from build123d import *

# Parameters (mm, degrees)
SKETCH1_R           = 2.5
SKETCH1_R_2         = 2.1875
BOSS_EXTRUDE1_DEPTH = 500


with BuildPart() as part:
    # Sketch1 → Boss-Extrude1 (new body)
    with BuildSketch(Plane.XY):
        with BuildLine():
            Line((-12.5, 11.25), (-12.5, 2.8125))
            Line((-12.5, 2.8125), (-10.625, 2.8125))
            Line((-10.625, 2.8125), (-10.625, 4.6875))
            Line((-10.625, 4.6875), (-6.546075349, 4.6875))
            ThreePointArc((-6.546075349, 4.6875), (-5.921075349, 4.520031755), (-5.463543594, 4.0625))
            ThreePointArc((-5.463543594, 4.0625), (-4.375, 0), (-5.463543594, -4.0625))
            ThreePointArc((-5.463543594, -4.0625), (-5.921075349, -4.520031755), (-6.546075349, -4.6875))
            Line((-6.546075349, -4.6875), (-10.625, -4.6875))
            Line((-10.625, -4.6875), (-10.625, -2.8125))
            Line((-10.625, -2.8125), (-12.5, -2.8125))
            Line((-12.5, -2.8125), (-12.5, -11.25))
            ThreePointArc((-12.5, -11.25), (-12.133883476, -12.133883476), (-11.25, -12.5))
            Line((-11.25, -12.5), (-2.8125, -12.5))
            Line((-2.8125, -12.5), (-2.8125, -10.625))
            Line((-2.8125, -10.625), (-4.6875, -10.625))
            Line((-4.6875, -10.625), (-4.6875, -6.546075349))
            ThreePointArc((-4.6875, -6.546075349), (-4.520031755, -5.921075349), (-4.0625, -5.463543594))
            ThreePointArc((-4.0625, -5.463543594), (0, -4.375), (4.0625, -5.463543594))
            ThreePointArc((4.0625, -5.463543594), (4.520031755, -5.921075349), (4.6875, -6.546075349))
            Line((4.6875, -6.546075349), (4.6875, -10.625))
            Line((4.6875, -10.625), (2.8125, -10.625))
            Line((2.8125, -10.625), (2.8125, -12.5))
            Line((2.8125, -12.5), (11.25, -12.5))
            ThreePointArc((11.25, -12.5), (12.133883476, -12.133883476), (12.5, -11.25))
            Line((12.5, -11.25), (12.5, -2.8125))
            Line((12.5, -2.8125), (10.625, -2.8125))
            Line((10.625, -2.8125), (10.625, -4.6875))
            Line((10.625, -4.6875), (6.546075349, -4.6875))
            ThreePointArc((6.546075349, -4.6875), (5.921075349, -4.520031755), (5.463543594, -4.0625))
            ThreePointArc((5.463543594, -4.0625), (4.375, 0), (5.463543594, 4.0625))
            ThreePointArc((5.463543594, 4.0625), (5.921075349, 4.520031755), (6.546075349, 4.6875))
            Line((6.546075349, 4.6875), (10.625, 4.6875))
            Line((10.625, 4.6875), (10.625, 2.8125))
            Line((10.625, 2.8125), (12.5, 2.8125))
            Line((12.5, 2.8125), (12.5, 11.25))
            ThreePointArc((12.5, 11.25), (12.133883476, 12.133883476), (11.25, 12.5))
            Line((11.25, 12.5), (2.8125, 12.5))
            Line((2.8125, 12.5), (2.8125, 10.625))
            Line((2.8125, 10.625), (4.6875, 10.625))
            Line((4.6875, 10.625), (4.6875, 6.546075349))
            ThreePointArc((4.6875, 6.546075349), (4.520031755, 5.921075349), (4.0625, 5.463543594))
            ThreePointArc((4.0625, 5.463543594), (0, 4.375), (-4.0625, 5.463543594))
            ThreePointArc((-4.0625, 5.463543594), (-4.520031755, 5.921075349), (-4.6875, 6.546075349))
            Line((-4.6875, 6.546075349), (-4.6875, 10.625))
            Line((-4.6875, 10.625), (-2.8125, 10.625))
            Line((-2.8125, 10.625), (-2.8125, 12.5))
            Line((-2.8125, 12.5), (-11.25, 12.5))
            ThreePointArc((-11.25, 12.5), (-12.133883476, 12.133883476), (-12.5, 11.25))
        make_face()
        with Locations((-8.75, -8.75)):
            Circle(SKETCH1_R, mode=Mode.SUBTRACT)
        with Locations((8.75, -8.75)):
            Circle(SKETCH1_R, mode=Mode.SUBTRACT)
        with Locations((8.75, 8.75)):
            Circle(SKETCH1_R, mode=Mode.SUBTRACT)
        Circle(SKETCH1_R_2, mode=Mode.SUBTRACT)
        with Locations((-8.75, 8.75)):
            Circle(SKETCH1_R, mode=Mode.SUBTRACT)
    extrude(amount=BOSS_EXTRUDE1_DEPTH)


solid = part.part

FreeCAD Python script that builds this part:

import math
import FreeCAD as App
import Part
import Sketcher
Q = App.Units.Quantity

doc = App.newDocument("Part")
body = doc.addObject("PartDesign::Body", "Body")

# Sketch on XY plane
sketch1 = body.newObject("Sketcher::SketchObject", "Sketch")
sketch1.AttachmentSupport = (doc.getObject("XY_Plane"), [""])
sketch1.MapMode = "FlatFace"
sketch1.addGeometry(Part.LineSegment(App.Vector(-12.5, 11.2, 0), App.Vector(-12.5, 2.8, 0)), False)
sketch1.addGeometry(Part.LineSegment(App.Vector(-12.5, 2.8, 0), App.Vector(-10.6, 2.8, 0)), False)
sketch1.addGeometry(Part.LineSegment(App.Vector(-10.6, 2.8, 0), App.Vector(-10.6, 4.7, 0)), False)
sketch1.addGeometry(Part.LineSegment(App.Vector(-10.6, 4.7, 0), App.Vector(-6.5, 4.7, 0)), False)
sketch1.addGeometry(Part.ArcOfCircle(Part.Circle(App.Vector(-6.5, 3.4, 0), App.Vector(0, 0, 1), 1.2), math.radians(30), math.radians(90)), False)
sketch1.addGeometry(Part.ArcOfCircle(Part.Circle(App.Vector(-12.5, 0, 0), App.Vector(0, 0, 1), 8.1), math.radians(-30), math.radians(30)), False)
sketch1.addGeometry(Part.ArcOfCircle(Part.Circle(App.Vector(-6.5, -3.4, 0), App.Vector(0, 0, 1), 1.2), math.radians(-90), math.radians(-30)), False)
sketch1.addGeometry(Part.LineSegment(App.Vector(-6.5, -4.7, 0), App.Vector(-10.6, -4.7, 0)), False)
sketch1.addGeometry(Part.LineSegment(App.Vector(-10.6, -4.7, 0), App.Vector(-10.6, -2.8, 0)), False)
sketch1.addGeometry(Part.LineSegment(App.Vector(-10.6, -2.8, 0), App.Vector(-12.5, -2.8, 0)), False)
sketch1.addGeometry(Part.LineSegment(App.Vector(-12.5, -2.8, 0), App.Vector(-12.5, -11.2, 0)), False)
sketch1.addGeometry(Part.ArcOfCircle(Part.Circle(App.Vector(-11.2, -11.2, 0), App.Vector(0, 0, 1), 1.3), math.radians(-180), math.radians(-90)), False)
sketch1.addGeometry(Part.LineSegment(App.Vector(-11.2, -12.5, 0), App.Vector(-2.8, -12.5, 0)), False)
sketch1.addGeometry(Part.LineSegment(App.Vector(-2.8, -12.5, 0), App.Vector(-2.8, -10.6, 0)), False)
sketch1.addGeometry(Part.LineSegment(App.Vector(-2.8, -10.6, 0), App.Vector(-4.7, -10.6, 0)), False)
sketch1.addGeometry(Part.LineSegment(App.Vector(-4.7, -10.6, 0), App.Vector(-4.7, -6.5, 0)), False)
sketch1.addGeometry(Part.ArcOfCircle(Part.Circle(App.Vector(-3.4, -6.5, 0), App.Vector(0, 0, 1), 1.2), math.radians(120), math.radians(180)), False)
sketch1.addGeometry(Part.ArcOfCircle(Part.Circle(App.Vector(0, -12.5, 0), App.Vector(0, 0, 1), 8.1), math.radians(60), math.radians(120)), False)
sketch1.addGeometry(Part.ArcOfCircle(Part.Circle(App.Vector(3.4, -6.5, 0), App.Vector(0, 0, 1), 1.2), math.radians(0), math.radians(60)), False)
sketch1.addGeometry(Part.LineSegment(App.Vector(4.7, -6.5, 0), App.Vector(4.7, -10.6, 0)), False)
sketch1.addGeometry(Part.LineSegment(App.Vector(4.7, -10.6, 0), App.Vector(2.8, -10.6, 0)), False)
sketch1.addGeometry(Part.LineSegment(App.Vector(2.8, -10.6, 0), App.Vector(2.8, -12.5, 0)), False)
sketch1.addGeometry(Part.LineSegment(App.Vector(2.8, -12.5, 0), App.Vector(11.2, -12.5, 0)), False)
sketch1.addGeometry(Part.ArcOfCircle(Part.Circle(App.Vector(11.2, -11.2, 0), App.Vector(0, 0, 1), 1.3), math.radians(-90), math.radians(0)), False)
sketch1.addGeometry(Part.LineSegment(App.Vector(12.5, -11.2, 0), App.Vector(12.5, -2.8, 0)), False)
sketch1.addGeometry(Part.LineSegment(App.Vector(12.5, -2.8, 0), App.Vector(10.6, -2.8, 0)), False)
sketch1.addGeometry(Part.LineSegment(App.Vector(10.6, -2.8, 0), App.Vector(10.6, -4.7, 0)), False)
sketch1.addGeometry(Part.LineSegment(App.Vector(10.6, -4.7, 0), App.Vector(6.5, -4.7, 0)), False)
sketch1.addGeometry(Part.ArcOfCircle(Part.Circle(App.Vector(6.5, -3.4, 0), App.Vector(0, 0, 1), 1.2), math.radians(-150), math.radians(-90)), False)
sketch1.addGeometry(Part.ArcOfCircle(Part.Circle(App.Vector(12.5, 0, 0), App.Vector(0, 0, 1), 8.1), math.radians(150), math.radians(210)), False)
sketch1.addGeometry(Part.ArcOfCircle(Part.Circle(App.Vector(6.5, 3.4, 0), App.Vector(0, 0, 1), 1.2), math.radians(90), math.radians(150)), False)
sketch1.addGeometry(Part.LineSegment(App.Vector(6.5, 4.7, 0), App.Vector(10.6, 4.7, 0)), False)
sketch1.addGeometry(Part.LineSegment(App.Vector(10.6, 4.7, 0), App.Vector(10.6, 2.8, 0)), False)
sketch1.addGeometry(Part.LineSegment(App.Vector(10.6, 2.8, 0), App.Vector(12.5, 2.8, 0)), False)
sketch1.addGeometry(Part.LineSegment(App.Vector(12.5, 2.8, 0), App.Vector(12.5, 11.2, 0)), False)
sketch1.addGeometry(Part.ArcOfCircle(Part.Circle(App.Vector(11.2, 11.2, 0), App.Vector(0, 0, 1), 1.3), math.radians(0), math.radians(90)), False)
sketch1.addGeometry(Part.LineSegment(App.Vector(11.2, 12.5, 0), App.Vector(2.8, 12.5, 0)), False)
sketch1.addGeometry(Part.LineSegment(App.Vector(2.8, 12.5, 0), App.Vector(2.8, 10.6, 0)), False)
sketch1.addGeometry(Part.LineSegment(App.Vector(2.8, 10.6, 0), App.Vector(4.7, 10.6, 0)), False)
sketch1.addGeometry(Part.LineSegment(App.Vector(4.7, 10.6, 0), App.Vector(4.7, 6.5, 0)), False)
sketch1.addGeometry(Part.ArcOfCircle(Part.Circle(App.Vector(3.4, 6.5, 0), App.Vector(0, 0, 1), 1.2), math.radians(-60), math.radians(0)), False)
sketch1.addGeometry(Part.ArcOfCircle(Part.Circle(App.Vector(0, 12.5, 0), App.Vector(0, 0, 1), 8.1), math.radians(-120), math.radians(-60)), False)
sketch1.addGeometry(Part.ArcOfCircle(Part.Circle(App.Vector(-3.4, 6.5, 0), App.Vector(0, 0, 1), 1.2), math.radians(180), math.radians(240)), False)
sketch1.addGeometry(Part.LineSegment(App.Vector(-4.7, 6.5, 0), App.Vector(-4.7, 10.6, 0)), False)
sketch1.addGeometry(Part.LineSegment(App.Vector(-4.7, 10.6, 0), App.Vector(-2.8, 10.6, 0)), False)
sketch1.addGeometry(Part.LineSegment(App.Vector(-2.8, 10.6, 0), App.Vector(-2.8, 12.5, 0)), False)
sketch1.addGeometry(Part.LineSegment(App.Vector(-2.8, 12.5, 0), App.Vector(-11.2, 12.5, 0)), False)
sketch1.addGeometry(Part.ArcOfCircle(Part.Circle(App.Vector(-11.2, 11.2, 0), App.Vector(0, 0, 1), 1.3), math.radians(90), math.radians(180)), False)
sketch1.addGeometry(Part.Circle(App.Vector(-8.8, -8.8, 0), App.Vector(0, 0, 1), 2.5), False)
sketch1.addGeometry(Part.Circle(App.Vector(8.8, -8.8, 0), App.Vector(0, 0, 1), 2.5), False)
sketch1.addGeometry(Part.Circle(App.Vector(-8.8, 8.8, 0), App.Vector(0, 0, 1), 2.5), False)
sketch1.addGeometry(Part.Circle(App.Vector(0, 0, 0), App.Vector(0, 0, 1), 2.2), False)
sketch1.addGeometry(Part.Circle(App.Vector(8.8, 8.8, 0), App.Vector(0, 0, 1), 2.5), False)
sketch1.addConstraint(Sketcher.Constraint("Coincident", 0, 2, 1, 1))
sketch1.addConstraint(Sketcher.Constraint("Coincident", 1, 2, 2, 1))
sketch1.addConstraint(Sketcher.Constraint("Coincident", 2, 2, 3, 1))
sketch1.addConstraint(Sketcher.Constraint("Tangent", 3, 2, 4, 2))
sketch1.addConstraint(Sketcher.Constraint("Tangent", 4, 1, 5, 2))
sketch1.addConstraint(Sketcher.Constraint("Tangent", 5, 1, 6, 2))
sketch1.addConstraint(Sketcher.Constraint("Tangent", 6, 1, 7, 1))
sketch1.addConstraint(Sketcher.Constraint("Coincident", 7, 2, 8, 1))
sketch1.addConstraint(Sketcher.Constraint("Coincident", 8, 2, 9, 1))
sketch1.addConstraint(Sketcher.Constraint("Coincident", 9, 2, 10, 1))
sketch1.addConstraint(Sketcher.Constraint("Tangent", 10, 2, 11, 1))
sketch1.addConstraint(Sketcher.Constraint("Tangent", 11, 2, 12, 1))
sketch1.addConstraint(Sketcher.Constraint("Coincident", 12, 2, 13, 1))
sketch1.addConstraint(Sketcher.Constraint("Coincident", 13, 2, 14, 1))
sketch1.addConstraint(Sketcher.Constraint("Coincident", 14, 2, 15, 1))
sketch1.addConstraint(Sketcher.Constraint("Tangent", 15, 2, 16, 2))
sketch1.addConstraint(Sketcher.Constraint("Tangent", 16, 1, 17, 2))
sketch1.addConstraint(Sketcher.Constraint("Tangent", 17, 1, 18, 2))
sketch1.addConstraint(Sketcher.Constraint("Tangent", 18, 1, 19, 1))
sketch1.addConstraint(Sketcher.Constraint("Coincident", 19, 2, 20, 1))
sketch1.addConstraint(Sketcher.Constraint("Coincident", 20, 2, 21, 1))
sketch1.addConstraint(Sketcher.Constraint("Coincident", 21, 2, 22, 1))
sketch1.addConstraint(Sketcher.Constraint("Tangent", 22, 2, 23, 1))
sketch1.addConstraint(Sketcher.Constraint("Tangent", 23, 2, 24, 1))
sketch1.addConstraint(Sketcher.Constraint("Coincident", 24, 2, 25, 1))
sketch1.addConstraint(Sketcher.Constraint("Coincident", 25, 2, 26, 1))
sketch1.addConstraint(Sketcher.Constraint("Coincident", 26, 2, 27, 1))
sketch1.addConstraint(Sketcher.Constraint("Tangent", 27, 2, 28, 2))
sketch1.addConstraint(Sketcher.Constraint("Tangent", 28, 1, 29, 2))
sketch1.addConstraint(Sketcher.Constraint("Tangent", 29, 1, 30, 2))
sketch1.addConstraint(Sketcher.Constraint("Tangent", 30, 1, 31, 1))
sketch1.addConstraint(Sketcher.Constraint("Coincident", 31, 2, 32, 1))
sketch1.addConstraint(Sketcher.Constraint("Coincident", 32, 2, 33, 1))
sketch1.addConstraint(Sketcher.Constraint("Coincident", 33, 2, 34, 1))
sketch1.addConstraint(Sketcher.Constraint("Tangent", 34, 2, 35, 1))
sketch1.addConstraint(Sketcher.Constraint("Tangent", 35, 2, 36, 1))
sketch1.addConstraint(Sketcher.Constraint("Coincident", 36, 2, 37, 1))
sketch1.addConstraint(Sketcher.Constraint("Coincident", 37, 2, 38, 1))
sketch1.addConstraint(Sketcher.Constraint("Coincident", 38, 2, 39, 1))
sketch1.addConstraint(Sketcher.Constraint("Tangent", 39, 2, 40, 2))
sketch1.addConstraint(Sketcher.Constraint("Tangent", 40, 1, 41, 2))
sketch1.addConstraint(Sketcher.Constraint("Tangent", 41, 1, 42, 2))
sketch1.addConstraint(Sketcher.Constraint("Tangent", 42, 1, 43, 1))
sketch1.addConstraint(Sketcher.Constraint("Coincident", 43, 2, 44, 1))
sketch1.addConstraint(Sketcher.Constraint("Coincident", 44, 2, 45, 1))
sketch1.addConstraint(Sketcher.Constraint("Coincident", 45, 2, 46, 1))
sketch1.addConstraint(Sketcher.Constraint("Tangent", 46, 2, 47, 1))
sketch1.addConstraint(Sketcher.Constraint("Tangent", 47, 2, 0, 1))
sketch1.addConstraint(Sketcher.Constraint("Vertical", 0))
sketch1.addConstraint(Sketcher.Constraint("Horizontal", 1))
sketch1.addConstraint(Sketcher.Constraint("Vertical", 2))
sketch1.addConstraint(Sketcher.Constraint("Horizontal", 3))
sketch1.addConstraint(Sketcher.Constraint("Horizontal", 7))
sketch1.addConstraint(Sketcher.Constraint("Vertical", 8))
sketch1.addConstraint(Sketcher.Constraint("Horizontal", 9))
sketch1.addConstraint(Sketcher.Constraint("Vertical", 10))
sketch1.addConstraint(Sketcher.Constraint("Horizontal", 12))
sketch1.addConstraint(Sketcher.Constraint("Vertical", 13))
sketch1.addConstraint(Sketcher.Constraint("Horizontal", 14))
sketch1.addConstraint(Sketcher.Constraint("Vertical", 15))
sketch1.addConstraint(Sketcher.Constraint("Vertical", 19))
sketch1.addConstraint(Sketcher.Constraint("Horizontal", 20))
sketch1.addConstraint(Sketcher.Constraint("Vertical", 21))
sketch1.addConstraint(Sketcher.Constraint("Horizontal", 22))
sketch1.addConstraint(Sketcher.Constraint("Vertical", 24))
sketch1.addConstraint(Sketcher.Constraint("Horizontal", 25))
sketch1.addConstraint(Sketcher.Constraint("Vertical", 26))
sketch1.addConstraint(Sketcher.Constraint("Horizontal", 27))
sketch1.addConstraint(Sketcher.Constraint("Horizontal", 31))
sketch1.addConstraint(Sketcher.Constraint("Vertical", 32))
sketch1.addConstraint(Sketcher.Constraint("Horizontal", 33))
sketch1.addConstraint(Sketcher.Constraint("Vertical", 34))
sketch1.addConstraint(Sketcher.Constraint("Horizontal", 36))
sketch1.addConstraint(Sketcher.Constraint("Vertical", 37))
sketch1.addConstraint(Sketcher.Constraint("Horizontal", 38))
sketch1.addConstraint(Sketcher.Constraint("Vertical", 39))
sketch1.addConstraint(Sketcher.Constraint("Vertical", 43))
sketch1.addConstraint(Sketcher.Constraint("Horizontal", 44))
sketch1.addConstraint(Sketcher.Constraint("Vertical", 45))
sketch1.addConstraint(Sketcher.Constraint("Horizontal", 46))
sketch1.addConstraint(Sketcher.Constraint("Coincident", 51, 3, -1, 1))
sketch1.addConstraint(Sketcher.Constraint("Equal", 4, 6))
sketch1.addConstraint(Sketcher.Constraint("Equal", 6, 11))
sketch1.addConstraint(Sketcher.Constraint("Equal", 11, 16))
sketch1.addConstraint(Sketcher.Constraint("Equal", 5, 17))
sketch1.addConstraint(Sketcher.Constraint("Equal", 16, 18))
sketch1.addConstraint(Sketcher.Constraint("Equal", 18, 23))
sketch1.addConstraint(Sketcher.Constraint("Equal", 23, 28))
sketch1.addConstraint(Sketcher.Constraint("Equal", 17, 29))
sketch1.addConstraint(Sketcher.Constraint("Equal", 28, 30))
sketch1.addConstraint(Sketcher.Constraint("Equal", 30, 35))
sketch1.addConstraint(Sketcher.Constraint("Equal", 35, 40))
sketch1.addConstraint(Sketcher.Constraint("Equal", 29, 41))
sketch1.addConstraint(Sketcher.Constraint("Equal", 40, 42))
sketch1.addConstraint(Sketcher.Constraint("Equal", 42, 47))
sketch1.addConstraint(Sketcher.Constraint("Equal", 48, 49))
sketch1.addConstraint(Sketcher.Constraint("Equal", 49, 50))
sketch1.addConstraint(Sketcher.Constraint("Equal", 50, 52))
sketch1.addConstraint(Sketcher.Constraint("Symmetric", 4, 3, 28, 3, -1, 1))
sketch1.addConstraint(Sketcher.Constraint("Symmetric", 6, 3, 30, 3, -1, 1))
sketch1.addConstraint(Sketcher.Constraint("Symmetric", 11, 3, 35, 3, -1, 1))
sketch1.addConstraint(Sketcher.Constraint("Symmetric", 16, 3, 40, 3, -1, 1))
sketch1.addConstraint(Sketcher.Constraint("Symmetric", 18, 3, 42, 3, -1, 1))
sketch1.addConstraint(Sketcher.Constraint("Symmetric", 23, 3, 47, 3, -1, 1))
sketch1.addConstraint(Sketcher.Constraint("Symmetric", 49, 3, 50, 3, -1, 1))
sketch1.addConstraint(Sketcher.Constraint("Symmetric", 48, 3, 52, 3, -1, 1))
sketch1.addConstraint(Sketcher.Constraint("Symmetric", 1, 2, 25, 2, -1, 1))
sketch1.addConstraint(Sketcher.Constraint("Symmetric", 8, 2, 32, 2, -1, 1))
sketch1.addConstraint(Sketcher.Constraint("Symmetric", 13, 2, 37, 2, -1, 1))
sketch1.addConstraint(Sketcher.Constraint("Symmetric", 20, 2, 44, 2, -1, 1))
sketch1.addConstraint(Sketcher.Constraint("Symmetric", 16, 3, 18, 3, -2))
sketch1.addConstraint(Sketcher.Constraint("Symmetric", 11, 3, 23, 3, -2))
sketch1.addConstraint(Sketcher.Constraint("Symmetric", 6, 3, 28, 3, -2))
sketch1.addConstraint(Sketcher.Constraint("Symmetric", 48, 3, 49, 3, -2))
sketch1.addConstraint(Sketcher.Constraint("Symmetric", 13, 2, 20, 2, -2))
sketch1.addConstraint(Sketcher.Constraint("Symmetric", 8, 2, 25, 2, -2))
sketch1.addConstraint(Sketcher.Constraint("Horizontal", 17, 3, 11, 2))
sketch1.addConstraint(Sketcher.Constraint("Vertical", 5, 3, 0, 2))
sketch1.addConstraint(Sketcher.Constraint("Equal", 9, 14))
sketch1.addConstraint(Sketcher.Constraint("Equal", 46, 0))
sketch1.addConstraint(Sketcher.Constraint("Equal", 44, 2))
sketch1.addConstraint(Sketcher.Constraint("Equal", 8, 13))
sketch1.addConstraint(Sketcher.Constraint("Equal", 31, 15))
sketch1.addConstraint(Sketcher.Constraint("Diameter", 48, Q("5 mm")))
sketch1.addConstraint(Sketcher.Constraint("Radius", 4, Q("1.25 mm")))
sketch1.addConstraint(Sketcher.Constraint("Diameter", 51, Q("4.375 mm")))
sketch1.addConstraint(Sketcher.Constraint("Radius", 5, Q("8.125 mm")))
sketch1.addConstraint(Sketcher.Constraint("DistanceX", 5, 3, -1, 1, Q("12.5 mm")))
sketch1.addConstraint(Sketcher.Constraint("DistanceX", 1, 1, 1, 2, Q("1.875 mm")))
sketch1.addConstraint(Sketcher.Constraint("DistanceX", 48, 3, -1, 1, Q("8.75 mm")))
sketch1.addConstraint(Sketcher.Constraint("DistanceY", 48, 3, -1, 1, Q("8.75 mm")))
sketch1.addConstraint(Sketcher.Constraint("DistanceX", 12, 1, 12, 2, Q("8.4375 mm")))
pad1 = body.newObject("PartDesign::Pad", "Pad")
pad1.Profile = sketch1
pad1.Length = 500

doc.recompute()
